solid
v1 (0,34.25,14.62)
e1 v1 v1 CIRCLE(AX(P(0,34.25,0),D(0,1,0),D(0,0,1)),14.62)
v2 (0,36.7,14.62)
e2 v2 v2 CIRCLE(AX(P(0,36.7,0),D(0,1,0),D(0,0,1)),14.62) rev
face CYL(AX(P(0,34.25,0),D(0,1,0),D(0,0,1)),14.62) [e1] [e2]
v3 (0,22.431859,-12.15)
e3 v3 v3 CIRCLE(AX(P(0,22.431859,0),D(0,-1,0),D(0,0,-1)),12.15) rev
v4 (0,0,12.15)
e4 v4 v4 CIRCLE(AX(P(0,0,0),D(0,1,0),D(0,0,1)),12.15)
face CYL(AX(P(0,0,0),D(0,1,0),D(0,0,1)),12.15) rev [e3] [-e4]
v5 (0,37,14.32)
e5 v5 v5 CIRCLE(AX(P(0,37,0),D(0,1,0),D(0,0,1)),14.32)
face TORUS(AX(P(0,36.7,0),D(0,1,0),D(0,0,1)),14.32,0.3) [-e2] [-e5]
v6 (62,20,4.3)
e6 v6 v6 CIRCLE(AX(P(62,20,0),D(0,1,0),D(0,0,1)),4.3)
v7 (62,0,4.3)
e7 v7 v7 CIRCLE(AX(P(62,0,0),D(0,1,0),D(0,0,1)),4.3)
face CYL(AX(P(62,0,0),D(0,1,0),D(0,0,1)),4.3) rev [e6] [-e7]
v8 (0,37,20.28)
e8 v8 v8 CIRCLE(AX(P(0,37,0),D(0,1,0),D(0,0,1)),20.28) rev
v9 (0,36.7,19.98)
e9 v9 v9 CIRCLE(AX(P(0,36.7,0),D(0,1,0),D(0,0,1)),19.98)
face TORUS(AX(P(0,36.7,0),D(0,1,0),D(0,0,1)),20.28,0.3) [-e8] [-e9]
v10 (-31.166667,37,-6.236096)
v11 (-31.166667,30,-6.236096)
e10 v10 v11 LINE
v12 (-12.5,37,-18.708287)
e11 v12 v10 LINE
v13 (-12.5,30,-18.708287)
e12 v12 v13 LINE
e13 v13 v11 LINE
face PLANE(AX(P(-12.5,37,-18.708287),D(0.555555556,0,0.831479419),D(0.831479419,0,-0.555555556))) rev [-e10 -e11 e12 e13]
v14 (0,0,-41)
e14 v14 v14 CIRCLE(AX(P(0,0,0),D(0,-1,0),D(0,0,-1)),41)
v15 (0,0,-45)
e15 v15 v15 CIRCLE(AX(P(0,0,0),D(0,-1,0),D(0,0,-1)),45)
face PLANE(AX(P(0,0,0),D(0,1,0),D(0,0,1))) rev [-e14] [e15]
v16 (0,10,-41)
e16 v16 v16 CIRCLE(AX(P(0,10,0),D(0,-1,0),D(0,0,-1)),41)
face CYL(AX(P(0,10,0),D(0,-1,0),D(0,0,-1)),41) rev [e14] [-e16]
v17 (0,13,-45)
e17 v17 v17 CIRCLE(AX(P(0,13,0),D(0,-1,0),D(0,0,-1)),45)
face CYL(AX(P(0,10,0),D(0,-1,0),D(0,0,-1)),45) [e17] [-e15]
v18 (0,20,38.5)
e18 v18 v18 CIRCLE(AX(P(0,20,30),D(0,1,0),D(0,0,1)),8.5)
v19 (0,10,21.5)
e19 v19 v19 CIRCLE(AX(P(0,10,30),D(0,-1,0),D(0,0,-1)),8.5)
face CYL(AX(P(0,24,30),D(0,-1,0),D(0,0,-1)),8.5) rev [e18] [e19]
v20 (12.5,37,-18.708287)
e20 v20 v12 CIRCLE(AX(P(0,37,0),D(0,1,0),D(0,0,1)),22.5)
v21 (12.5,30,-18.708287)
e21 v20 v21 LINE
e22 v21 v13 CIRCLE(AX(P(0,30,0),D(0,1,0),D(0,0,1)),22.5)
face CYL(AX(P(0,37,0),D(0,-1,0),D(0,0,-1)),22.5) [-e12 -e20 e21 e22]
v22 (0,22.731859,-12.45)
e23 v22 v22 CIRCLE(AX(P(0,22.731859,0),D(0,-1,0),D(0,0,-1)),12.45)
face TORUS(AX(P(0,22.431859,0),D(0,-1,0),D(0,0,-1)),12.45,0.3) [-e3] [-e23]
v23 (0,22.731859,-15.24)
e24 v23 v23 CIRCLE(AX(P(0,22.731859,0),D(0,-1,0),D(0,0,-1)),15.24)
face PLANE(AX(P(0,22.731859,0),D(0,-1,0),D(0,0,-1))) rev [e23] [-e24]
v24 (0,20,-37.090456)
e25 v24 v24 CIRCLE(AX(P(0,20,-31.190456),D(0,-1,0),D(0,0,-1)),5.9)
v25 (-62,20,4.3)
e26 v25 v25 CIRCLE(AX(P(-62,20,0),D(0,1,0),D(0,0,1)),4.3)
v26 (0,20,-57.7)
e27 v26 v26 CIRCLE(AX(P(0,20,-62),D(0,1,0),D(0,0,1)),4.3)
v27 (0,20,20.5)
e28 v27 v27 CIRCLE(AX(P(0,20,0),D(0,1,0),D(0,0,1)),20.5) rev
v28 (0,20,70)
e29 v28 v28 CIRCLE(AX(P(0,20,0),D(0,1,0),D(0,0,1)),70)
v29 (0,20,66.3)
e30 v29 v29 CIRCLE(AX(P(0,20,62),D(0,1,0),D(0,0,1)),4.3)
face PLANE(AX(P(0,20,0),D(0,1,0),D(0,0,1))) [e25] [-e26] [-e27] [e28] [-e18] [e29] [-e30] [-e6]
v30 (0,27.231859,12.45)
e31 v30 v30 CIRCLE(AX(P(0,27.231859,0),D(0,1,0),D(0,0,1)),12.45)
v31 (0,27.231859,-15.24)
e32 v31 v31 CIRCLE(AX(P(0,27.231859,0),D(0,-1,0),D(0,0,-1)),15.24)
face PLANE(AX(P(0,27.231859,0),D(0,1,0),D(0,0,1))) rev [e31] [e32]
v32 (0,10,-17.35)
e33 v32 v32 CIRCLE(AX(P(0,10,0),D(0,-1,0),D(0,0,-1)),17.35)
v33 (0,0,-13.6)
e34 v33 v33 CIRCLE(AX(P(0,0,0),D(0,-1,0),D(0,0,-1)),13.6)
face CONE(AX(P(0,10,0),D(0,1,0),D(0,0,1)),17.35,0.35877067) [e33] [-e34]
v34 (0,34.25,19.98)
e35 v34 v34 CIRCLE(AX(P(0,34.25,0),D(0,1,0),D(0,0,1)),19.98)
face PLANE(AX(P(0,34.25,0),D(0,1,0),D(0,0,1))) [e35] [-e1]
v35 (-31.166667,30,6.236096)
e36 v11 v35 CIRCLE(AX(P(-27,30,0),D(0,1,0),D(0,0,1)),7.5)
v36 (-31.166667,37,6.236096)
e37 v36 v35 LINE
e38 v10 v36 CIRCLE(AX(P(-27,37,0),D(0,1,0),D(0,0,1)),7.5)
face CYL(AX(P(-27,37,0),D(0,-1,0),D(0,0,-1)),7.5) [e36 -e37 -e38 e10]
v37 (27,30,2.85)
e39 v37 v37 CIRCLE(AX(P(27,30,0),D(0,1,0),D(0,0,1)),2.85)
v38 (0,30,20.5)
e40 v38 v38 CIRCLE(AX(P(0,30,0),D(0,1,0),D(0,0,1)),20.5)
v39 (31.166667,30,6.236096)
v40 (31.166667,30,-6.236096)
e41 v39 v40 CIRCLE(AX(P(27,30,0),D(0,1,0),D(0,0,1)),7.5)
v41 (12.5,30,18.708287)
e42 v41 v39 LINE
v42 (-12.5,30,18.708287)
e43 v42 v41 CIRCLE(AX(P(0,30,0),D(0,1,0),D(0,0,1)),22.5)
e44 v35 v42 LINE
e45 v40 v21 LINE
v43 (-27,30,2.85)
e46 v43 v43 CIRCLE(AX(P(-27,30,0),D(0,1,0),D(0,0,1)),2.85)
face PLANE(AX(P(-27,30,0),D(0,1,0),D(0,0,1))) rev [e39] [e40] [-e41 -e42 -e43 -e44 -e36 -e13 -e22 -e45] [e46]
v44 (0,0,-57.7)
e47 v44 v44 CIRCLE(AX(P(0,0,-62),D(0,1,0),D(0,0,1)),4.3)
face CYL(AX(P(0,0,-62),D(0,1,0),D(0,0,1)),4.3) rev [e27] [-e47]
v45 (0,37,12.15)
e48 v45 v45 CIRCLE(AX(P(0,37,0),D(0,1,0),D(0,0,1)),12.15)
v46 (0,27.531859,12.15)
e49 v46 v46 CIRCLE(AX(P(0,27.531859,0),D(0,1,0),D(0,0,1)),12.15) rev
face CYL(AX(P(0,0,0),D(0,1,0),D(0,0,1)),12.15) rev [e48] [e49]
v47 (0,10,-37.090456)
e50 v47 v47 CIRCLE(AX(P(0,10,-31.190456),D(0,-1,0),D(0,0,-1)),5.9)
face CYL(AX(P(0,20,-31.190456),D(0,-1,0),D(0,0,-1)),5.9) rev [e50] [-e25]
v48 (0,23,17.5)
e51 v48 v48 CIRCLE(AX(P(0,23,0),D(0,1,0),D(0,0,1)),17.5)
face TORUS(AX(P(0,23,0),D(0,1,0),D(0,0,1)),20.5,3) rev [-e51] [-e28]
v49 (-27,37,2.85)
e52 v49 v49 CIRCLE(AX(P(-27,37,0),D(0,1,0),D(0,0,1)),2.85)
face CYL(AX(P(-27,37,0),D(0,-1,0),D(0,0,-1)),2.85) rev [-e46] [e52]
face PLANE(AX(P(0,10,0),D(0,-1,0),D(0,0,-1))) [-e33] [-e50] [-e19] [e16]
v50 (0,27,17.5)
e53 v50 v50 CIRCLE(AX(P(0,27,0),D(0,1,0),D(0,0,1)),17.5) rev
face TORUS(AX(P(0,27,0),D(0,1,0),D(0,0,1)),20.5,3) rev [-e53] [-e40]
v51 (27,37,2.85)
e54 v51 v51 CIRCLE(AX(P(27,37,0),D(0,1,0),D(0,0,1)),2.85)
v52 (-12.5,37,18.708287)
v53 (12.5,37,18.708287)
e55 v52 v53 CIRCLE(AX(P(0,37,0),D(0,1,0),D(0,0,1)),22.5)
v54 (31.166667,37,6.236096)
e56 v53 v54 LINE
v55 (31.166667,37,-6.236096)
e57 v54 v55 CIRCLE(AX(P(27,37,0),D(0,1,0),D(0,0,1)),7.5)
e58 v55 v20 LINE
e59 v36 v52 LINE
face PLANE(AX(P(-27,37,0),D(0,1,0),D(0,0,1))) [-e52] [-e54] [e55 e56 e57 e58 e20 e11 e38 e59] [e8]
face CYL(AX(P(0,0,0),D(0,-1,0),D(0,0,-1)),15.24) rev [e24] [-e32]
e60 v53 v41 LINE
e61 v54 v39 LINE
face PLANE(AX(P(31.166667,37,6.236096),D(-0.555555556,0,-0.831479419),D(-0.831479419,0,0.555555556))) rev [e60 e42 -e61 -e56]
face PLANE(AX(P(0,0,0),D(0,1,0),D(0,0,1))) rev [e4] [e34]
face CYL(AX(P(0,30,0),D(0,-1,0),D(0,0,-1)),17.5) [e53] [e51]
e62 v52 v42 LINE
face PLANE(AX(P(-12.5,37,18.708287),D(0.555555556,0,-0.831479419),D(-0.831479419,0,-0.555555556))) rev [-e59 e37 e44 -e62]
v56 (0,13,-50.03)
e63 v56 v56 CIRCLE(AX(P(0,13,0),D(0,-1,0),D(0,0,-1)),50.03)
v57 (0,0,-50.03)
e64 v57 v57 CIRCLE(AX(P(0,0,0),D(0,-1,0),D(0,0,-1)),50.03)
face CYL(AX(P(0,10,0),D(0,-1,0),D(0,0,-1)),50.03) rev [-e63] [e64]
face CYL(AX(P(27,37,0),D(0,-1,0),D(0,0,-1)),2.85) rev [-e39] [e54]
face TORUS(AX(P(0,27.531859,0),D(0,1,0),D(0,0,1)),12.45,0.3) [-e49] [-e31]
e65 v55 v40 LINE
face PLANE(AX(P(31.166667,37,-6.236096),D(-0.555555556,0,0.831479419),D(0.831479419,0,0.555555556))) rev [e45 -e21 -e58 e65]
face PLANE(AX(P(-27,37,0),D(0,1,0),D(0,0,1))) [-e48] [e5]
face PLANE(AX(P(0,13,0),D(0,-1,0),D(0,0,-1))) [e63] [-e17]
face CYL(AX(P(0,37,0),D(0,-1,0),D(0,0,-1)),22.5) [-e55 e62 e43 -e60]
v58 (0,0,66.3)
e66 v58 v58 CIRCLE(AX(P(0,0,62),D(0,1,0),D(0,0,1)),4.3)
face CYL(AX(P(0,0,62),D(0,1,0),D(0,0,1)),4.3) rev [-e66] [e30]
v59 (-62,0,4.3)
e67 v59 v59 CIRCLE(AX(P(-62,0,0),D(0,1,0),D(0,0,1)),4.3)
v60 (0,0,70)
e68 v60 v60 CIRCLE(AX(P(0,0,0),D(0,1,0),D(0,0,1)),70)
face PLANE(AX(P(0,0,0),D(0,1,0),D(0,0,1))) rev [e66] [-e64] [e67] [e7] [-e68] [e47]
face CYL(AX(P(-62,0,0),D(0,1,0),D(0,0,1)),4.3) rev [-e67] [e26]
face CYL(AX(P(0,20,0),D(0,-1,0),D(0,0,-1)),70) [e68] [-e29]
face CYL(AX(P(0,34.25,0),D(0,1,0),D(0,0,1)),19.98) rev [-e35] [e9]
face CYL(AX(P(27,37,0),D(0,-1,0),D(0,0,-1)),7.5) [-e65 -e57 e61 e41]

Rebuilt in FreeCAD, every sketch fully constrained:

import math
import FreeCAD as App
import Part
import Sketcher

V = App.Vector


def edges_at(feature, points):
    """Names of the edges that pass closest to the given points."""
    edges = feature.Shape.Edges
    near = lambda p: min(range(len(edges)), key=lambda i: edges[i].distToShape(Part.Vertex(*p))[0])
    return sorted({f"Edge{near(p) + 1}" for p in points})

doc = App.newDocument("Part")
params = doc.addObject("Spreadsheet::Sheet", "Params")
for row, (alias, value) in enumerate([
    ("sketch1_diameter", "140 mm"),
    ("pad1_length", "20 mm"),
    ("sketch2_diameter", "90 mm"),
    ("sketch2_diameter2", "82 mm"),
    ("sketch2_diameter3", "34.7 mm"),
    ("sketch2_diameter4", "100.06 mm"),
    ("pocket1_length", "10 mm"),
    ("sketch3_height", "10 mm"),
    ("sketch3_width", "3.75 mm"),
    ("groove_angle", "360 deg"),
    ("sketch4_diameter", "35 mm"),
    ("pad2_length", "10 mm"),
    ("sketch5_diameter", "5.7 mm"),
    ("sketch5_radius", "7.5 mm"),
    ("sketch5_radius2", "22.5 mm"),
    ("pad3_length", "7 mm"),
    ("sketch6_diameter", "24.3 mm"),
    ("sketch7_diameter", "39.96 mm"),
    ("sketch7_diameter2", "29.24 mm"),
    ("pocket3_length", "2.75 mm"),
    ("fillet_radius", "0.3 mm"),
    ("fillet2_radius", "3 mm"),
    ("sketch8_height", "4.5 mm"),
    ("groove2_angle", "360 deg"),
    ("fillet3_radius", "0.3 mm"),
    ("sketch9_diameter", "8.6 mm"),
    ("sketch10_diameter", "17 mm"),
    ("pocket5_length", "14 mm"),
    ("sketch11_diameter", "90 mm"),
    ("sketch11_diameter2", "100.06 mm"),
    ("pocket6_length", "3 mm"),
    ("sketch12_diameter", "11.8 mm"),
    ("pocket7_length", "10 mm"),
], start=1):
    params.set(f"A{row}", alias)
    params.set(f"B{row}", "=" + value)
    params.setAlias(f"B{row}", alias)

body = doc.addObject("PartDesign::Body", "Body")

# Sketch on XZ plane
sketch1 = body.newObject("Sketcher::SketchObject", "Sketch")
sketch1.AttachmentSupport = (doc.getObject("XZ_Plane"), [""])
sketch1.MapMode = "FlatFace"
sketch1.addGeometry(Part.Circle(V(0, 0, 0), V(0, 0, 1), 70), False)
sketch1.addConstraint([
    Sketcher.Constraint("Coincident", 0, 3, -1, 1),
    Sketcher.Constraint("Diameter", 0, 140.0),
])
sketch1.setExpression("Constraints[1]", "Params.sketch1_diameter")
pad1 = body.newObject("PartDesign::Pad", "Pad")
pad1.Profile = sketch1
pad1.setExpression("Length", "Params.pad1_length")
pad1.Reversed = True

# Sketch on XZ plane
sketch2 = body.newObject("Sketcher::SketchObject", "Sketch001")
sketch2.AttachmentSupport = (doc.getObject("XZ_Plane"), [""])
sketch2.MapMode = "FlatFace"
sketch2.addGeometry([
    Part.Circle(V(0, 0, 0), V(0, 0, 1), 50),
    Part.Circle(V(0, 0, 0), V(0, 0, 1), 45),
    Part.Circle(V(0, 0, 0), V(0, 0, 1), 41),
    Part.Circle(V(0, 0, 0), V(0, 0, 1), 17),
], False)
sketch2.addConstraint([
    Sketcher.Constraint("Coincident", 0, 3, -1, 1),
    Sketcher.Constraint("Coincident", 1, 3, -1, 1),
    Sketcher.Constraint("Coincident", 2, 3, -1, 1),
    Sketcher.Constraint("Coincident", 3, 3, -1, 1),
    Sketcher.Constraint("Diameter", 1, 90.0),
    Sketcher.Constraint("Diameter", 2, 82.0),
    Sketcher.Constraint("Diameter", 3, 34.7),
    Sketcher.Constraint("Diameter", 0, 100.06),
])
sketch2.setExpression("Constraints[4]", "Params.sketch2_diameter")
sketch2.setExpression("Constraints[5]", "Params.sketch2_diameter2")
sketch2.setExpression("Constraints[6]", "Params.sketch2_diameter3")
sketch2.setExpression("Constraints[7]", "Params.sketch2_diameter4")
pocket1 = body.newObject("PartDesign::Pocket", "Pocket")
pocket1.Profile = sketch2
pocket1.setExpression("Length", "Params.pocket1_length")

# Sketch on XY plane
sketch3 = body.newObject("Sketcher::SketchObject", "Sketch002")
sketch3.AttachmentSupport = (doc.getObject("XY_Plane"), [""])
sketch3.MapMode = "FlatFace"
sketch3.addGeometry([
    Part.LineSegment(V(-17.4, 10, 0), V(-17.4, 0, 0)),
    Part.LineSegment(V(-17.4, 0, 0), V(-13.6, 0, 0)),
    Part.LineSegment(V(-13.6, 0, 0), V(-17.4, 10, 0)),
], False)
sketch3.addConstraint([
    Sketcher.Constraint("Coincident", 0, 2, 1, 1),
    Sketcher.Constraint("Coincident", 1, 2, 2, 1),
    Sketcher.Constraint("Coincident", 2, 2, 0, 1),
    Sketcher.Constraint("Vertical", 0),
    Sketcher.Constraint("Horizontal", 1),
    Sketcher.Constraint("PointOnObject", 0, 2, -1),
    Sketcher.Constraint("DistanceY", 0, 2, 0, 1, 10.0),
    Sketcher.Constraint("DistanceX", 1, 1, 1, 2, 3.75),
    Sketcher.Constraint("DistanceX", 1, 2, -1, 1, 13.6),
])
sketch3.setExpression("Constraints[6]", "Params.sketch3_height")
sketch3.setExpression("Constraints[7]", "Params.sketch3_width")
groove = body.newObject("PartDesign::Groove", "Groove")
groove.Profile = sketch3
groove.ReferenceAxis = (sketch3, ["V_Axis"])
groove.setExpression("Angle", "Params.groove_angle")

# Sketch on XZ plane
sketch4 = body.newObject("Sketcher::SketchObject", "Sketch003")
sketch4.AttachmentSupport = (doc.getObject("XZ_Plane"), [""])
sketch4.MapMode = "FlatFace"
sketch4.AttachmentOffset = App.Placement(V(0, 0, -20), App.Rotation())
sketch4.addGeometry(Part.Circle(V(0, 0, 0), V(0, 0, 1), 18), False)
sketch4.addConstraint([
    Sketcher.Constraint("Coincident", 0, 3, -1, 1),
    Sketcher.Constraint("Diameter", 0, 35.0),
])
sketch4.setExpression("Constraints[1]", "Params.sketch4_diameter")
pad2 = body.newObject("PartDesign::Pad", "Pad001")
pad2.Profile = sketch4
pad2.setExpression("Length", "Params.pad2_length")
pad2.Reversed = True

# Sketch on XZ plane
sketch5 = body.newObject("Sketcher::SketchObject", "Sketch004")
sketch5.AttachmentSupport = (doc.getObject("XZ_Plane"), [""])
sketch5.MapMode = "FlatFace"
sketch5.AttachmentOffset = App.Placement(V(0, 0, -30), App.Rotation())
sketch5.addGeometry([
    Part.LineSegment(V(12.5, 18.7, 0), V(31.2, 6.2, 0)),  # 0
    Part.ArcOfCircle(Part.Circle(V(27, 0, 0), V(0, 0, 1), 7.5), math.radians(-56), math.radians(56)),  # 1
    Part.LineSegment(V(31.2, -6.2, 0), V(12.5, -18.7, 0)),  # 2
    Part.ArcOfCircle(Part.Circle(V(0, 0, 0), V(0, 0, 1), 22.5), math.radians(-124), math.radians(-56)),  # 3
    Part.LineSegment(V(-12.5, -18.7, 0), V(-31.2, -6.2, 0)),  # 4
    Part.ArcOfCircle(Part.Circle(V(-27, 0, 0), V(0, 0, 1), 7.5), math.radians(124), math.radians(236)),  # 5
    Part.LineSegment(V(-31.2, 6.2, 0), V(-12.5, 18.7, 0)),  # 6
    Part.ArcOfCircle(Part.Circle(V(0, 0, 0), V(0, 0, 1), 22.5), math.radians(56), math.radians(124)),  # 7
    Part.Circle(V(27, 0, 0), V(0, 0, 1), 2.9),  # 8
    Part.Circle(V(-27, 0, 0), V(0, 0, 1), 2.9),  # 9
], False)
sketch5.addConstraint([
    Sketcher.Constraint("Tangent", 0, 2, 1, 2),
    Sketcher.Constraint("Tangent", 1, 1, 2, 1),
    Sketcher.Constraint("Tangent", 2, 2, 3, 2),
    Sketcher.Constraint("Tangent", 3, 1, 4, 1),
    Sketcher.Constraint("Tangent", 4, 2, 5, 2),
    Sketcher.Constraint("Tangent", 5, 1, 6, 1),
    Sketcher.Constraint("Tangent", 6, 2, 7, 2),
    Sketcher.Constraint("Tangent", 7, 1, 0, 1),
    Sketcher.Constraint("Coincident", 3, 3, -1, 1),
    Sketcher.Constraint("Coincident", 7, 3, -1, 1),
    Sketcher.Constraint("Coincident", 8, 3, 1, 3),
    Sketcher.Constraint("Coincident", 9, 3, 5, 3),
    Sketcher.Constraint("Equal", 1, 5),
    Sketcher.Constraint("Equal", 3, 7),
    Sketcher.Constraint("Equal", 8, 9),
    Sketcher.Constraint("Symmetric", 1, 3, 5, 3, -1, 1),
    Sketcher.Constraint("PointOnObject", 1, 3, -1),
    Sketcher.Constraint("Diameter", 8, 5.7),
    Sketcher.Constraint("Radius", 1, 7.5),
    Sketcher.Constraint("Radius", 3, 22.5),
    Sketcher.Constraint("DistanceX", -1, 1, 1, 3, 27.0),
])
sketch5.setExpression("Constraints[17]", "Params.sketch5_diameter")
sketch5.setExpression("Constraints[18]", "Params.sketch5_radius")
sketch5.setExpression("Constraints[19]", "Params.sketch5_radius2")
pad3 = body.newObject("PartDesign::Pad", "Pad002")
pad3.Profile = sketch5
pad3.setExpression("Length", "Params.pad3_length")
pad3.Reversed = True

# Sketch on XZ plane
sketch6 = body.newObject("Sketcher::SketchObject", "Sketch005")
sketch6.AttachmentSupport = (doc.getObject("XZ_Plane"), [""])
sketch6.MapMode = "FlatFace"
sketch6.AttachmentOffset = App.Placement(V(0, 0, -37), App.Rotation())
sketch6.addGeometry(Part.Circle(V(0, 0, 0), V(0, 0, 1), 12), False)
sketch6.addConstraint([
    Sketcher.Constraint("Coincident", 0, 3, -1, 1),
    Sketcher.Constraint("Diameter", 0, 24.3),
])
sketch6.setExpression("Constraints[1]", "Params.sketch6_diameter")
pocket2 = body.newObject("PartDesign::Pocket", "Pocket001")
pocket2.Profile = sketch6
pocket2.Type = "ThroughAll"
pocket2.Reversed = True

# Sketch on XZ plane
sketch7 = body.newObject("Sketcher::SketchObject", "Sketch006")
sketch7.AttachmentSupport = (doc.getObject("XZ_Plane"), [""])
sketch7.MapMode = "FlatFace"
sketch7.AttachmentOffset = App.Placement(V(0, 0, -37), App.Rotation())
sketch7.addGeometry([
    Part.Circle(V(0, 0, 0), V(0, 0, 1), 20),
    Part.Circle(V(0, 0, 0), V(0, 0, 1), 15),
], False)
sketch7.addConstraint([
    Sketcher.Constraint("Coincident", 0, 3, -1, 1),
    Sketcher.Constraint("Coincident", 1, 3, -1, 1),
    Sketcher.Constraint("Diameter", 0, 39.96),
    Sketcher.Constraint("Diameter", 1, 29.24),
])
sketch7.setExpression("Constraints[2]", "Params.sketch7_diameter")
sketch7.setExpression("Constraints[3]", "Params.sketch7_diameter2")
pocket3 = body.newObject("PartDesign::Pocket", "Pocket002")
pocket3.Profile = sketch7
pocket3.setExpression("Length", "Params.pocket3_length")
pocket3.Reversed = True
doc.recompute()

fillet = body.newObject("PartDesign::Fillet", "Fillet")
fillet.Base = (pocket3, edges_at(pocket3, [(0, 37, -19.98), (0, 37, -14.62)]))
fillet.setExpression("Radius", "Params.fillet_radius")
doc.recompute()

fillet2 = body.newObject("PartDesign::Fillet", "Fillet001")
fillet2.Base = (fillet, edges_at(fillet, [(0, 20, -17.5), (0, 30, -17.5)]))
fillet2.setExpression("Radius", "Params.fillet2_radius")

# Sketch on XY plane
sketch8 = body.newObject("Sketcher::SketchObject", "Sketch007")
sketch8.AttachmentSupport = (doc.getObject("XY_Plane"), [""])
sketch8.MapMode = "FlatFace"
sketch8.addGeometry([
    Part.LineSegment(V(-15.2, 27.2, 0), V(-15.2, 22.7, 0)),
    Part.LineSegment(V(-15.2, 22.7, 0), V(-11.9, 22.7, 0)),
    Part.LineSegment(V(-11.9, 22.7, 0), V(-11.9, 27.2, 0)),
    Part.LineSegment(V(-11.9, 27.2, 0), V(-15.2, 27.2, 0)),
], False)
sketch8.addConstraint([
    Sketcher.Constraint("Coincident", 0, 2, 1, 1),
    Sketcher.Constraint("Coincident", 1, 2, 2, 1),
    Sketcher.Constraint("Coincident", 2, 2, 3, 1),
    Sketcher.Constraint("Coincident", 3, 2, 0, 1),
    Sketcher.Constraint("Vertical", 0),
    Sketcher.Constraint("Horizontal", 1),
    Sketcher.Constraint("Vertical", 2),
    Sketcher.Constraint("Horizontal", 3),
    Sketcher.Constraint("DistanceY", 0, 2, 0, 1, 4.5),
    Sketcher.Constraint("DistanceX", 0, 2, -1, 1, 15.24),
    Sketcher.Constraint("DistanceX", 1, 1, 1, 2, 3.323822),
    Sketcher.Constraint("DistanceY", -1, 1, 0, 2, 22.731859),
])
sketch8.setExpression("Constraints[8]", "Params.sketch8_height")
groove2 = body.newObject("PartDesign::Groove", "Groove001")
groove2.Profile = sketch8
groove2.ReferenceAxis = (sketch8, ["V_Axis"])
groove2.setExpression("Angle", "Params.groove2_angle")
doc.recompute()

fillet3 = body.newObject("PartDesign::Fillet", "Fillet002")
fillet3.Base = (groove2, edges_at(groove2, [(0, 27.232, -12.15), (0, 22.732, -12.15)]))
fillet3.setExpression("Radius", "Params.fillet3_radius")

# Sketch on XZ plane
sketch9 = body.newObject("Sketcher::SketchObject", "Sketch008")
sketch9.AttachmentSupport = (doc.getObject("XZ_Plane"), [""])
sketch9.MapMode = "FlatFace"
sketch9.AttachmentOffset = App.Placement(V(0, 0, -20), App.Rotation())
sketch9.addGeometry([
    Part.Circle(V(0, -62, 0), V(0, 0, 1), 4.3),
    Part.Circle(V(62, 0, 0), V(0, 0, 1), 4.3),
    Part.Circle(V(0, 62, 0), V(0, 0, 1), 4.3),
    Part.Circle(V(-62, 0, 0), V(0, 0, 1), 4.3),
], False)
sketch9.addConstraint([
    Sketcher.Constraint("Equal", 0, 1),
    Sketcher.Constraint("Equal", 1, 2),
    Sketcher.Constraint("Equal", 2, 3),
    Sketcher.Constraint("Symmetric", 0, 3, 2, 3, -1, 1),
    Sketcher.Constraint("Symmetric", 1, 3, 3, 3, -1, 1),
    Sketcher.Constraint("PointOnObject", 0, 3, -2),
    Sketcher.Constraint("PointOnObject", 1, 3, -1),
    Sketcher.Constraint("Diameter", 0, 8.6),
    Sketcher.Constraint("DistanceY", 0, 3, -1, 1, 62.0),
    Sketcher.Constraint("DistanceX", -1, 1, 1, 3, 62.0),
])
sketch9.setExpression("Constraints[7]", "Params.sketch9_diameter")
pocket4 = body.newObject("PartDesign::Pocket", "Pocket003")
pocket4.Profile = sketch9
pocket4.Type = "ThroughAll"
pocket4.Reversed = True

# Sketch on XZ plane
sketch10 = body.newObject("Sketcher::SketchObject", "Sketch009")
sketch10.AttachmentSupport = (doc.getObject("XZ_Plane"), [""])
sketch10.MapMode = "FlatFace"
sketch10.AttachmentOffset = App.Placement(V(0, 0, -10), App.Rotation())
sketch10.addGeometry(Part.Circle(V(0, 30, 0), V(0, 0, 1), 8), False)
sketch10.addConstraint([
    Sketcher.Constraint("PointOnObject", 0, 3, -2),
    Sketcher.Constraint("Diameter", 0, 17.0),
    Sketcher.Constraint("DistanceY", -1, 1, 0, 3, 30.0),
])
sketch10.setExpression("Constraints[1]", "Params.sketch10_diameter")
pocket5 = body.newObject("PartDesign::Pocket", "Pocket004")
pocket5.Profile = sketch10
pocket5.setExpression("Length", "Params.pocket5_length")

# Sketch on XZ plane
sketch11 = body.newObject("Sketcher::SketchObject", "Sketch010")
sketch11.AttachmentSupport = (doc.getObject("XZ_Plane"), [""])
sketch11.MapMode = "FlatFace"
sketch11.AttachmentOffset = App.Placement(V(0, 0, -10), App.Rotation())
sketch11.addGeometry([
    Part.Circle(V(0, 0, 0), V(0, 0, 1), 50),
    Part.Circle(V(0, 0, 0), V(0, 0, 1), 45),
], False)
sketch11.addConstraint([
    Sketcher.Constraint("Coincident", 0, 3, -1, 1),
    Sketcher.Constraint("Coincident", 1, 3, -1, 1),
    Sketcher.Constraint("Diameter", 1, 90.0),
    Sketcher.Constraint("Diameter", 0, 100.06),
])
sketch11.setExpression("Constraints[2]", "Params.sketch11_diameter")
sketch11.setExpression("Constraints[3]", "Params.sketch11_diameter2")
pocket6 = body.newObject("PartDesign::Pocket", "Pocket005")
pocket6.Profile = sketch11
pocket6.setExpression("Length", "Params.pocket6_length")

# Sketch on XZ plane
sketch12 = body.newObject("Sketcher::SketchObject", "Sketch011")
sketch12.AttachmentSupport = (doc.getObject("XZ_Plane"), [""])
sketch12.MapMode = "FlatFace"
sketch12.AttachmentOffset = App.Placement(V(0, 0, -10), App.Rotation())
sketch12.addGeometry(Part.Circle(V(0, -31, 0), V(0, 0, 1), 6), False)
sketch12.addConstraint([
    Sketcher.Constraint("PointOnObject", 0, 3, -2),
    Sketcher.Constraint("Diameter", 0, 11.8),
    Sketcher.Constraint("DistanceY", 0, 3, -1, 1, 31.190456),
])
sketch12.setExpression("Constraints[1]", "Params.sketch12_diameter")
pocket7 = body.newObject("PartDesign::Pocket", "Pocket006")
pocket7.Profile = sketch12
pocket7.setExpression("Length", "Params.pocket7_length")

doc.recompute()
